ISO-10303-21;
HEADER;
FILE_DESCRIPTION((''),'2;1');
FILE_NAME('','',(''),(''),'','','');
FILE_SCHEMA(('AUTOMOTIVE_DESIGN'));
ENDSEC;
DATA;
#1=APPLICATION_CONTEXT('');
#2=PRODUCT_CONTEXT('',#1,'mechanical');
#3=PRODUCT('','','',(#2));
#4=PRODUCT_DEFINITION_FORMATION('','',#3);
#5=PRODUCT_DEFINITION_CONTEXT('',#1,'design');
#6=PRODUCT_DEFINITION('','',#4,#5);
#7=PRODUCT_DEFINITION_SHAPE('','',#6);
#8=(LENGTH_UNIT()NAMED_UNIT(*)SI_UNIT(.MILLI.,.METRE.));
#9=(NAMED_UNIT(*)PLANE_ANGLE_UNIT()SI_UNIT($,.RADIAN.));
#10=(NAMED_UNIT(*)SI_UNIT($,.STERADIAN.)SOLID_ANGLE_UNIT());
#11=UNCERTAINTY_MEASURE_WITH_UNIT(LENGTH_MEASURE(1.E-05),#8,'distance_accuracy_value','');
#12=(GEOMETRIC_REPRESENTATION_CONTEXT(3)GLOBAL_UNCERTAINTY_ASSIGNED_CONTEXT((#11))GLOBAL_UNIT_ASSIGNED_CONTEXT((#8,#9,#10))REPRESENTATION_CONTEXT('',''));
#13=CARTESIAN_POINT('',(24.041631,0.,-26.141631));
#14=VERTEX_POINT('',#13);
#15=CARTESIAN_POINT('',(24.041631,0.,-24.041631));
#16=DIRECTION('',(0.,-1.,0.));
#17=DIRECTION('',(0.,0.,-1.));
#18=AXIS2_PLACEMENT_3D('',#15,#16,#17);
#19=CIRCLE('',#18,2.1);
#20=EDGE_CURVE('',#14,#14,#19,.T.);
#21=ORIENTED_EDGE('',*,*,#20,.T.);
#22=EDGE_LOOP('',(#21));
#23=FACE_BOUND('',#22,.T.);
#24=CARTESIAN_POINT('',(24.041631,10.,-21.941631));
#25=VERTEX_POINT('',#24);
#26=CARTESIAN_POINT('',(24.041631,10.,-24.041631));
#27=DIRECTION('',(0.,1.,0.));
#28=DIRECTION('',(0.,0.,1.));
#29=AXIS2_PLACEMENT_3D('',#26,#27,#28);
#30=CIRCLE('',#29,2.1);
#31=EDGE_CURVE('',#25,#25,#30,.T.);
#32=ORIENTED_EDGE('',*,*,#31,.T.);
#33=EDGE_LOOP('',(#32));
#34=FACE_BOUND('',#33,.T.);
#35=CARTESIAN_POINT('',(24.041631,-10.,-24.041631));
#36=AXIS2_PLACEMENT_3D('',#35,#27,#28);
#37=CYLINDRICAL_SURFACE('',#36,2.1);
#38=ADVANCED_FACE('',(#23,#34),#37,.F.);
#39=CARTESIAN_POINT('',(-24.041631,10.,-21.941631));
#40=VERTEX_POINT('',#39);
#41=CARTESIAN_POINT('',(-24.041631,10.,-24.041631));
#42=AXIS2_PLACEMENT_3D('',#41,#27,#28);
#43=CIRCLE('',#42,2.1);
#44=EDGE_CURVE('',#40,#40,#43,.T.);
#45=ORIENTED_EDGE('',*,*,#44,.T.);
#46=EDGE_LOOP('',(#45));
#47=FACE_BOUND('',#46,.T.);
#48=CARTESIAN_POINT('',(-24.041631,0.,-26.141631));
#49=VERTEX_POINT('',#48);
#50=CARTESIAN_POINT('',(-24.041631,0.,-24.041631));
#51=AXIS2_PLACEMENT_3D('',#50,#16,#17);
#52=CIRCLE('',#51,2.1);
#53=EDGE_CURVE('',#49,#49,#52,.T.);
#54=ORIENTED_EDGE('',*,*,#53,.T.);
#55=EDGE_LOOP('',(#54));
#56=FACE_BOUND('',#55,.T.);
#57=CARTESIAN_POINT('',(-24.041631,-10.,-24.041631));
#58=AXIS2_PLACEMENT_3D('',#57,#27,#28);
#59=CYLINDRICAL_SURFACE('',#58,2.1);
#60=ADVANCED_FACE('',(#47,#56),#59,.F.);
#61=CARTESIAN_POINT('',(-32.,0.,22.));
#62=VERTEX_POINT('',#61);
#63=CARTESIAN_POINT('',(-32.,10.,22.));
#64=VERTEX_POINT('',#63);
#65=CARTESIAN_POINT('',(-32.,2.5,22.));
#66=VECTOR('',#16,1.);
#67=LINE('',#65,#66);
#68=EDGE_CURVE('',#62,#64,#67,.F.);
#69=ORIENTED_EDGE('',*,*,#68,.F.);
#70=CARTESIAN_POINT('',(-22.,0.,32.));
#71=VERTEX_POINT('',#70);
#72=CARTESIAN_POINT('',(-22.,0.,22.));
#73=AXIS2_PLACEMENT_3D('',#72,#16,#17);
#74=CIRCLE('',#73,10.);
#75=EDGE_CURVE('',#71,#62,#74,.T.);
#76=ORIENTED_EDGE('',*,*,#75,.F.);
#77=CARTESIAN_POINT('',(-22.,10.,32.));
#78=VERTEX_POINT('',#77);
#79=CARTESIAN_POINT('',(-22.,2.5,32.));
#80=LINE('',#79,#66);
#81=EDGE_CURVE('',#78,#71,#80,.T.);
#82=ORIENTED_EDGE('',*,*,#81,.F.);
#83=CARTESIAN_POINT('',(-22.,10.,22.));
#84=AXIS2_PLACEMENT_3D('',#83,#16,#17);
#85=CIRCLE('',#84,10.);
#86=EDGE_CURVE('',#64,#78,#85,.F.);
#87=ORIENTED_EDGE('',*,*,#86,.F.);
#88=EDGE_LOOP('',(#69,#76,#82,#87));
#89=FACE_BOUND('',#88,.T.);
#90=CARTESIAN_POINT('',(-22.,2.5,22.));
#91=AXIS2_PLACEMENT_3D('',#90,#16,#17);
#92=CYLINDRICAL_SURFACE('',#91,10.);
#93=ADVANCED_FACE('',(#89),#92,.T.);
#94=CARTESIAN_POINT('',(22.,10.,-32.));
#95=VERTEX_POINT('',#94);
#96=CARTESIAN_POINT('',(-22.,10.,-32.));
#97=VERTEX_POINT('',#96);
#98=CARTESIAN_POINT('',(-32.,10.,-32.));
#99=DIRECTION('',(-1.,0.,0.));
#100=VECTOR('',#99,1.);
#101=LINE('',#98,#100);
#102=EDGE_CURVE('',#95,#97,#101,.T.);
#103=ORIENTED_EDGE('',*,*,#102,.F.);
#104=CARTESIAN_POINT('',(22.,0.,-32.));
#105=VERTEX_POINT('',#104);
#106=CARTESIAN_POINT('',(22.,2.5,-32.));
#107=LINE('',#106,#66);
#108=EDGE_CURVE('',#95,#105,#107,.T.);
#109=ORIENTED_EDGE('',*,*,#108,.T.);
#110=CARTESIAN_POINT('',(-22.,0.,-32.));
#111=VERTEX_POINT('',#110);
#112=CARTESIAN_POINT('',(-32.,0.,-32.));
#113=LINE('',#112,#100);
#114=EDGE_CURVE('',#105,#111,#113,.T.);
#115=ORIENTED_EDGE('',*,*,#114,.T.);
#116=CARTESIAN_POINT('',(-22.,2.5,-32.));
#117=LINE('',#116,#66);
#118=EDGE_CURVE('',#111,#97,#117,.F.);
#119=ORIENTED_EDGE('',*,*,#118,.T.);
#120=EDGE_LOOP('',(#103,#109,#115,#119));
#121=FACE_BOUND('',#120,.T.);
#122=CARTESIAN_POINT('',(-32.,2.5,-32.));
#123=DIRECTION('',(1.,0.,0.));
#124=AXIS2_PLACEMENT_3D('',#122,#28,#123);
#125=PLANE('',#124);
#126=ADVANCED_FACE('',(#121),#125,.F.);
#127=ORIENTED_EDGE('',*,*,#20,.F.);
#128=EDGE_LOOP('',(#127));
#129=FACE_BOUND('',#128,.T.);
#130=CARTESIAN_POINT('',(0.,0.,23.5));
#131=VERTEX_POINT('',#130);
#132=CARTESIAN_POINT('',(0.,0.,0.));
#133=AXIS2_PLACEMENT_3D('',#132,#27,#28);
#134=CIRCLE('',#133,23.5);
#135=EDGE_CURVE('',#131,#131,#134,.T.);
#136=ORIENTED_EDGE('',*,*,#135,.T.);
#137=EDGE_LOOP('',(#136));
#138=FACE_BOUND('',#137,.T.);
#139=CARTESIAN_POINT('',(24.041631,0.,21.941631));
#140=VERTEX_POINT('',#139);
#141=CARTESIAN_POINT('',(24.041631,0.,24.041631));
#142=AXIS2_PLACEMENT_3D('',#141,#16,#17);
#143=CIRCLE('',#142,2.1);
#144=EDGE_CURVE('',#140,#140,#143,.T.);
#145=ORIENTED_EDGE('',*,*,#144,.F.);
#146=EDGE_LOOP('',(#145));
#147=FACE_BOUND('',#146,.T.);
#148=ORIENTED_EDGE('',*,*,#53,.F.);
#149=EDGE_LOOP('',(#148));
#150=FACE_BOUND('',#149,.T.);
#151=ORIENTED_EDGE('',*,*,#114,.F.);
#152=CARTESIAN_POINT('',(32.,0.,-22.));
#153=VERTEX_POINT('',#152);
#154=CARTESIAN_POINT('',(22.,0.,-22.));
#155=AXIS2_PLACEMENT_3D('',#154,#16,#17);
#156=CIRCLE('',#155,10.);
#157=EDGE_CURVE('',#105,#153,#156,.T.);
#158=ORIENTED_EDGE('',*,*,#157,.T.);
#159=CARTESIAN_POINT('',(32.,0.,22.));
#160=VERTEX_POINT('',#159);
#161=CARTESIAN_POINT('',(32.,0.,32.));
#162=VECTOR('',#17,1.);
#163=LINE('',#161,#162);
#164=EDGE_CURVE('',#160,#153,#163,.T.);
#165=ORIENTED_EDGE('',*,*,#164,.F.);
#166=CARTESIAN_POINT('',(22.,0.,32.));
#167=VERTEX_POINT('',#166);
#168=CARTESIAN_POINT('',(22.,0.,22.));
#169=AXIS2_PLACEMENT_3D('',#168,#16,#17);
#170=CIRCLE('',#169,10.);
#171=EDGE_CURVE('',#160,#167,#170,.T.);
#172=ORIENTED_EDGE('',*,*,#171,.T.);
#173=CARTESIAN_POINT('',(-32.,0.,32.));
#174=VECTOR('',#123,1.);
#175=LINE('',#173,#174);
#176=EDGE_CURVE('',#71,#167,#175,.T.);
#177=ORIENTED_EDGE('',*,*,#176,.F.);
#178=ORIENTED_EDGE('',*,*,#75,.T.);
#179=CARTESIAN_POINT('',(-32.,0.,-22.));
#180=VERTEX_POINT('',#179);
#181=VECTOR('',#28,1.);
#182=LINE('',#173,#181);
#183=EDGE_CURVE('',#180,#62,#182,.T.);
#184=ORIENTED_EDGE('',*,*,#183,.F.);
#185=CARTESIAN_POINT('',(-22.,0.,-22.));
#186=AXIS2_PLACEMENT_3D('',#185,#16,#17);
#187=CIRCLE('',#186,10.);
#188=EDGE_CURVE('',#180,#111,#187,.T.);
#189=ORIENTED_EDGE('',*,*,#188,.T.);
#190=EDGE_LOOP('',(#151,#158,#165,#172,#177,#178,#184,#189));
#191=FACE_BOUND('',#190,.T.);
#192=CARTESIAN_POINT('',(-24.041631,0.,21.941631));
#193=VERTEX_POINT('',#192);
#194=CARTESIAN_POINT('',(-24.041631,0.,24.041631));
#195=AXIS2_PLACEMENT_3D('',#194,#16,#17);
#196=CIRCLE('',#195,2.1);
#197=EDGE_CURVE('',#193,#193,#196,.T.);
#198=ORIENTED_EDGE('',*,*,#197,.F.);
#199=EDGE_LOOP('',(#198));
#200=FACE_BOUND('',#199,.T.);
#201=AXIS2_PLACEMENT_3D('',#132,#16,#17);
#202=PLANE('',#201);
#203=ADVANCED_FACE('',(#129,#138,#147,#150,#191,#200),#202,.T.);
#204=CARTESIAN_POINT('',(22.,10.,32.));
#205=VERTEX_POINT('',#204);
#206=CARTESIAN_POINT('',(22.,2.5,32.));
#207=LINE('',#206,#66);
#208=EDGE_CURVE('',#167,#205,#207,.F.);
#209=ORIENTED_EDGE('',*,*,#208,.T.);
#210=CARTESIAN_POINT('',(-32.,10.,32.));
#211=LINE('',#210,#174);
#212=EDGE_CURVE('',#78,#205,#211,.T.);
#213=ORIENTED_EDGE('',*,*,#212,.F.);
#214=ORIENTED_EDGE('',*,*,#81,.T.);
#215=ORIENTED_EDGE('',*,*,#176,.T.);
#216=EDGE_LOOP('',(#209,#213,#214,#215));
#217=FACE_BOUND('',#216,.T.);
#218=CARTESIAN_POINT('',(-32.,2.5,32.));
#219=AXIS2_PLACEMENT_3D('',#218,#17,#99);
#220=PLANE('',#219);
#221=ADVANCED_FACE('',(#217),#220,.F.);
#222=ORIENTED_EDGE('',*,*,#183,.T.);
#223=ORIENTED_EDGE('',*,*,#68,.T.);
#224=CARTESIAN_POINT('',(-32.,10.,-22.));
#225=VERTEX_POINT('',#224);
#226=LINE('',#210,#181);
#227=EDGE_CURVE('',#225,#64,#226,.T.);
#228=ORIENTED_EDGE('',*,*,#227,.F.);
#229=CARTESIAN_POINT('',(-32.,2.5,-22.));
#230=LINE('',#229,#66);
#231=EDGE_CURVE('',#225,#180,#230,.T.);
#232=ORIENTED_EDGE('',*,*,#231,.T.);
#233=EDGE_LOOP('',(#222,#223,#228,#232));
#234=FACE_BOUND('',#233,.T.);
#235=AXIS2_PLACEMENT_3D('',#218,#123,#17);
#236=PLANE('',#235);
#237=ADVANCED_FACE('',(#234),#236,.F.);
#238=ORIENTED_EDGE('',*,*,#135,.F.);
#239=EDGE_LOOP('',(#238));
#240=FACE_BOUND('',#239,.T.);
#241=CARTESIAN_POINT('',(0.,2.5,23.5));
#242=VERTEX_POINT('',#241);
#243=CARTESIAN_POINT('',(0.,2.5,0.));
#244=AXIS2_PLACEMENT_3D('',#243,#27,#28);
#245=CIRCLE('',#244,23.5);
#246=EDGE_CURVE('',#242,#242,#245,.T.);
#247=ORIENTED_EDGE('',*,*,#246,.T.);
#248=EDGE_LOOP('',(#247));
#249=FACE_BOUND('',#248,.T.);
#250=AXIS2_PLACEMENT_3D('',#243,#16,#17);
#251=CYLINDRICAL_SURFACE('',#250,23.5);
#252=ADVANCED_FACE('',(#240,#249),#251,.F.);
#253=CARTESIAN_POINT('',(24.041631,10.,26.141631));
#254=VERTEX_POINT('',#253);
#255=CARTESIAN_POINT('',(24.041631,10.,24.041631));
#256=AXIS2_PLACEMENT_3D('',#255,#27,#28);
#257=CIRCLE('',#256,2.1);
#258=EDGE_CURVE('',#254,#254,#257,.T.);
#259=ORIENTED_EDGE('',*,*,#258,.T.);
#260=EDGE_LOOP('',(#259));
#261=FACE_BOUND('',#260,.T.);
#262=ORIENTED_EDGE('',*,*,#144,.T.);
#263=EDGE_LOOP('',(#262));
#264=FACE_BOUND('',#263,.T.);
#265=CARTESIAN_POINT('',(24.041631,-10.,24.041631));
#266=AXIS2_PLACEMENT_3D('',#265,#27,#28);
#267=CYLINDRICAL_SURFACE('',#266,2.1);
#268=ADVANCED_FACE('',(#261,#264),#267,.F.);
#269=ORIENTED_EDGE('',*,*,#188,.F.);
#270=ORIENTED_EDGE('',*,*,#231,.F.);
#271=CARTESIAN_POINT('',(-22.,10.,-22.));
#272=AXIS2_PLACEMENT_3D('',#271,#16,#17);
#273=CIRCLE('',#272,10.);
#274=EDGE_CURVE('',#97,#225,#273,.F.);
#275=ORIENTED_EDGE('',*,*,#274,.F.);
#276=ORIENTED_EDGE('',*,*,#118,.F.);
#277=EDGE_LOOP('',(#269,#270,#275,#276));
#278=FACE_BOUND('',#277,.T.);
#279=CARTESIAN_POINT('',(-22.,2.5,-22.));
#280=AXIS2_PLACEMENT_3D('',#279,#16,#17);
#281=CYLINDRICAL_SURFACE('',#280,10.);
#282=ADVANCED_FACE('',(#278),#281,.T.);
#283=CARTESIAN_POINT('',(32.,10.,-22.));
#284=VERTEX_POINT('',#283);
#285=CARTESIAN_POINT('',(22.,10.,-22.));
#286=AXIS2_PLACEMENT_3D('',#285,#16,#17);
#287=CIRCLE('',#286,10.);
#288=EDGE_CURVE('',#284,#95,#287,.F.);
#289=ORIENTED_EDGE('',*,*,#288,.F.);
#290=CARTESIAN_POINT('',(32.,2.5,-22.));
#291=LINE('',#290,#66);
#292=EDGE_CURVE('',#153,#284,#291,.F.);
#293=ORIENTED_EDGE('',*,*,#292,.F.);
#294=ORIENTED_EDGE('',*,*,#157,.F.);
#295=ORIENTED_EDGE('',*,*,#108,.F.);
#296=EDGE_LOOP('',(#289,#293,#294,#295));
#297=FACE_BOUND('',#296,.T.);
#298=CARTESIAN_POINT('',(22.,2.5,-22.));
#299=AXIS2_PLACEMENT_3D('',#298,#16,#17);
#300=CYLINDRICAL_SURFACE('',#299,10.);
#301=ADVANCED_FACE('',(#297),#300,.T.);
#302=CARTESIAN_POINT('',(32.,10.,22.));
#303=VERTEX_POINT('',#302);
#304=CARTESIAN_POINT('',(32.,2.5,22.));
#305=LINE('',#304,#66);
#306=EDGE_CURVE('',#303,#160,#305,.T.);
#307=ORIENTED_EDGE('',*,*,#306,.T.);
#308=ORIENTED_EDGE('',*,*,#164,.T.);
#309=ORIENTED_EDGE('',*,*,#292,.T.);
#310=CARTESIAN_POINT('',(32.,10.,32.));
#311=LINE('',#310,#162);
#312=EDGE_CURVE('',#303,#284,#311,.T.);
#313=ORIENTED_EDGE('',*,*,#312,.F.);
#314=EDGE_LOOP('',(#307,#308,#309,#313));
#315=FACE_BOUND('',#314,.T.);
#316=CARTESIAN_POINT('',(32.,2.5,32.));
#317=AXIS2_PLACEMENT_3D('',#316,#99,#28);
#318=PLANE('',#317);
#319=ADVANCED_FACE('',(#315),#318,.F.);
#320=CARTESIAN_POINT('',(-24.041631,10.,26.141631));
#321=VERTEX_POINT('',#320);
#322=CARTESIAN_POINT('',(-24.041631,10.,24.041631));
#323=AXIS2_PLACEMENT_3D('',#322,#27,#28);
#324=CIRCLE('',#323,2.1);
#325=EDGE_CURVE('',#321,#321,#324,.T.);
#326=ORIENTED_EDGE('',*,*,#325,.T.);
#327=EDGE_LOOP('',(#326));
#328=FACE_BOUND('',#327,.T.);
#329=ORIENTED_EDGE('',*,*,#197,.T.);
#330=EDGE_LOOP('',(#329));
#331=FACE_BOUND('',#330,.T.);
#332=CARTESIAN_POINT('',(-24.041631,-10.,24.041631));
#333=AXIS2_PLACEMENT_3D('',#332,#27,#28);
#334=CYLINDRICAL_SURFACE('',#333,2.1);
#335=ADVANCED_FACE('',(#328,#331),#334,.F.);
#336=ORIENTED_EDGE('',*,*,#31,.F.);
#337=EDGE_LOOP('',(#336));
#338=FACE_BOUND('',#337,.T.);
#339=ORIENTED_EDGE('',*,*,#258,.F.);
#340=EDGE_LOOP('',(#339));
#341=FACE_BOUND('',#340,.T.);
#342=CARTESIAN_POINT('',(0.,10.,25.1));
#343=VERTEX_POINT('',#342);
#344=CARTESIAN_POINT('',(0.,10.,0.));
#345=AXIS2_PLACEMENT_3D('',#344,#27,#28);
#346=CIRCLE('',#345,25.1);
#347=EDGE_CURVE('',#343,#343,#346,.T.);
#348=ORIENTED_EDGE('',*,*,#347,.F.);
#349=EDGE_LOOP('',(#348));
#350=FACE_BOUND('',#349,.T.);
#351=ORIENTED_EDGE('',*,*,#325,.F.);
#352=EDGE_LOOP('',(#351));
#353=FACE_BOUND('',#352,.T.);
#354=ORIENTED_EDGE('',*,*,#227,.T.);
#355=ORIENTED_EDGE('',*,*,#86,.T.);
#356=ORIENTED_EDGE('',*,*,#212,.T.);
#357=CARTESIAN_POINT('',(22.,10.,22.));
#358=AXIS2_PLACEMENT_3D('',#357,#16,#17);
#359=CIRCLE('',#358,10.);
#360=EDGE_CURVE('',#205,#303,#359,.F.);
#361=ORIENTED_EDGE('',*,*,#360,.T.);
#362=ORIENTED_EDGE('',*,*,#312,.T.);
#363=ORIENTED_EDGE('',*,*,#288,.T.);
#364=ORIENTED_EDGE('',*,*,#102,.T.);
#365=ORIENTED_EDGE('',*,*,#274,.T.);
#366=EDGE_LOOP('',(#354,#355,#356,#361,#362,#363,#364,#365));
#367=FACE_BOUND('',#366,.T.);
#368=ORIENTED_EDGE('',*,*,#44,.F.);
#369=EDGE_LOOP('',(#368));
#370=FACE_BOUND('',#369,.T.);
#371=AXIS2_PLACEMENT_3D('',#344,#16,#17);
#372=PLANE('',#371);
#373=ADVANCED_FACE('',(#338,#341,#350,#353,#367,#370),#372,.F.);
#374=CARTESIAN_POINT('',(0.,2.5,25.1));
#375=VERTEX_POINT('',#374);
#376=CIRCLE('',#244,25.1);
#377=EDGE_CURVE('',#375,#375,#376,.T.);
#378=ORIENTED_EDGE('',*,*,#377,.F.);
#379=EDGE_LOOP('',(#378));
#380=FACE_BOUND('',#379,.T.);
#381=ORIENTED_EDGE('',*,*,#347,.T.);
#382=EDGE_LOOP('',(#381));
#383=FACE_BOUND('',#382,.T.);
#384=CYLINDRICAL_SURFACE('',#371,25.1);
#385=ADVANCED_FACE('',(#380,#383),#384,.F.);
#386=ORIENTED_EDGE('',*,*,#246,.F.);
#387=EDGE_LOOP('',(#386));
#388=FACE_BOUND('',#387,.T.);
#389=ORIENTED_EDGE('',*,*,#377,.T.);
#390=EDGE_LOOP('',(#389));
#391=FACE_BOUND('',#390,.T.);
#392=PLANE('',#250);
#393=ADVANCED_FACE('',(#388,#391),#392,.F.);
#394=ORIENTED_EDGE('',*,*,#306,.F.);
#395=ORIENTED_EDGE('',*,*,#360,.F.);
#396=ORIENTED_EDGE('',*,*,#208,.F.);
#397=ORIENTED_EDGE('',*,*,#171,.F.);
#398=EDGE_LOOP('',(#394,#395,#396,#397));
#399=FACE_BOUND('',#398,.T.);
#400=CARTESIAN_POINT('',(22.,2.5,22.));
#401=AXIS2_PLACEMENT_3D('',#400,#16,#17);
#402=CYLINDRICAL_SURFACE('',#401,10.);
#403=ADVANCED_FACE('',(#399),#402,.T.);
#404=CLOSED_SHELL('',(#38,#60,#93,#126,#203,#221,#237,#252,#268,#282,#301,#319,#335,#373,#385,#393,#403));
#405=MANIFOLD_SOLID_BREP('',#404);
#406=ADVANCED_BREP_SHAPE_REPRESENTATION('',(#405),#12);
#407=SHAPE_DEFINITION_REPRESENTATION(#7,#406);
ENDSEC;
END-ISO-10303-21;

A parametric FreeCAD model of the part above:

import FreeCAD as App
import Part
import Sketcher

V = App.Vector


def edges_at(feature, points):
    """Names of the edges that pass closest to the given points."""
    edges = feature.Shape.Edges
    near = lambda p: min(range(len(edges)), key=lambda i: edges[i].distToShape(Part.Vertex(*p))[0])
    return sorted({f"Edge{near(p) + 1}" for p in points})

doc = App.newDocument("Part")
body = doc.addObject("PartDesign::Body", "Body")

sketch1 = doc.addObject("Sketcher::SketchObject", "Sketch")
body.addObject(sketch1)
sketch1.AttachmentSupport = (doc.XZ_Plane, [""])
sketch1.MapMode = "FlatFace"
sketch1.addGeometry([
    Part.LineSegment(V(-32, -32, 0), V(-32, 32, 0)),
    Part.LineSegment(V(-32, 32, 0), V(32, 32, 0)),
    Part.LineSegment(V(32, 32, 0), V(32, -32, 0)),
    Part.LineSegment(V(32, -32, 0), V(-32, -32, 0)),
    Part.Circle(V(0, 0, 0), V(0, 0, 1), 24),
], False)
sketch1.addConstraint([
    Sketcher.Constraint("Coincident", 0, 2, 1, 1),
    Sketcher.Constraint("Coincident", 1, 2, 2, 1),
    Sketcher.Constraint("Coincident", 2, 2, 3, 1),
    Sketcher.Constraint("Coincident", 3, 2, 0, 1),
    Sketcher.Constraint("Vertical", 0),
    Sketcher.Constraint("Horizontal", 1),
    Sketcher.Constraint("Vertical", 2),
    Sketcher.Constraint("Horizontal", 3),
    Sketcher.Constraint("Coincident", 4, 3, -1, 1),
    Sketcher.Constraint("Symmetric", 0, 2, 2, 2, -1, 1),
    Sketcher.Constraint("Equal", 3, 0),
    Sketcher.Constraint("Diameter", 4, 47.0),
    Sketcher.Constraint("DistanceX", 1, 1, 1, 2, 64.0),
])
pad1 = doc.addObject("PartDesign::Pad", "Pad")
body.addObject(pad1)
pad1.Profile = sketch1
pad1.Length = 2.5
pad1.Reversed = True

sketch2 = doc.addObject("Sketcher::SketchObject", "Sketch001")
body.addObject(sketch2)
sketch2.AttachmentSupport = (doc.XZ_Plane, [""])
sketch2.MapMode = "FlatFace"
sketch2.AttachmentOffset = App.Placement(V(0, 0, -2.5), App.Rotation())
sketch2.addGeometry([
    Part.LineSegment(V(-32, -32, 0), V(-32, 32, 0)),
    Part.LineSegment(V(-32, 32, 0), V(32, 32, 0)),
    Part.LineSegment(V(32, 32, 0), V(32, -32, 0)),
    Part.LineSegment(V(32, -32, 0), V(-32, -32, 0)),
    Part.Circle(V(0, 0, 0), V(0, 0, 1), 25),
], False)
sketch2.addConstraint([
    Sketcher.Constraint("Coincident", 0, 2, 1, 1),
    Sketcher.Constraint("Coincident", 1, 2, 2, 1),
    Sketcher.Constraint("Coincident", 2, 2, 3, 1),
    Sketcher.Constraint("Coincident", 3, 2, 0, 1),
    Sketcher.Constraint("Vertical", 0),
    Sketcher.Constraint("Horizontal", 1),
    Sketcher.Constraint("Vertical", 2),
    Sketcher.Constraint("Horizontal", 3),
    Sketcher.Constraint("Coincident", 4, 3, -1, 1),
    Sketcher.Constraint("Symmetric", 0, 2, 2, 2, -1, 1),
    Sketcher.Constraint("Equal", 3, 0),
    Sketcher.Constraint("Diameter", 4, 50.2),
    Sketcher.Constraint("DistanceX", 1, 1, 1, 2, 64.0),
])
pad2 = doc.addObject("PartDesign::Pad", "Pad001")
body.addObject(pad2)
pad2.Profile = sketch2
pad2.Length = 7.5
pad2.Reversed = True

sketch3 = doc.addObject("Sketcher::SketchObject", "Sketch002")
body.addObject(sketch3)
sketch3.AttachmentSupport = (doc.XZ_Plane, [""])
sketch3.MapMode = "FlatFace"
sketch3.AttachmentOffset = App.Placement(V(0, 0, -10), App.Rotation())
sketch3.addGeometry([
    Part.Circle(V(24, -24, 0), V(0, 0, 1), 2.1),
    Part.Circle(V(24, 24, 0), V(0, 0, 1), 2.1),
    Part.Circle(V(-24, 24, 0), V(0, 0, 1), 2.1),
    Part.Circle(V(-24, -24, 0), V(0, 0, 1), 2.1),
], False)
sketch3.addConstraint([
    Sketcher.Constraint("Equal", 0, 1),
    Sketcher.Constraint("Equal", 1, 2),
    Sketcher.Constraint("Equal", 2, 3),
    Sketcher.Constraint("Symmetric", 0, 3, 2, 3, -1, 1),
    Sketcher.Constraint("Symmetric", 1, 3, 3, 3, -1, 1),
    Sketcher.Constraint("Symmetric", 1, 3, 2, 3, -2),
    Sketcher.Constraint("Diameter", 0, 4.2),
    Sketcher.Constraint("DistanceX", -1, 1, 0, 3, 24.041631),
    Sketcher.Constraint("DistanceY", 0, 3, -1, 1, 24.041631),
])
pocket1 = doc.addObject("PartDesign::Pocket", "Pocket")
body.addObject(pocket1)
pocket1.Profile = sketch3
pocket1.Length = 20
pocket1.Reversed = True
doc.recompute()

fillet = doc.addObject("PartDesign::Fillet", "Fillet")
body.addObject(fillet)
fillet.Base = (pocket1, edges_at(pocket1, [
    (32, 5, 32),
    (-32, 5, 32),
    (-32, 5, -32),
    (32, 5, -32),
]))
fillet.Radius = 10

doc.recompute()
